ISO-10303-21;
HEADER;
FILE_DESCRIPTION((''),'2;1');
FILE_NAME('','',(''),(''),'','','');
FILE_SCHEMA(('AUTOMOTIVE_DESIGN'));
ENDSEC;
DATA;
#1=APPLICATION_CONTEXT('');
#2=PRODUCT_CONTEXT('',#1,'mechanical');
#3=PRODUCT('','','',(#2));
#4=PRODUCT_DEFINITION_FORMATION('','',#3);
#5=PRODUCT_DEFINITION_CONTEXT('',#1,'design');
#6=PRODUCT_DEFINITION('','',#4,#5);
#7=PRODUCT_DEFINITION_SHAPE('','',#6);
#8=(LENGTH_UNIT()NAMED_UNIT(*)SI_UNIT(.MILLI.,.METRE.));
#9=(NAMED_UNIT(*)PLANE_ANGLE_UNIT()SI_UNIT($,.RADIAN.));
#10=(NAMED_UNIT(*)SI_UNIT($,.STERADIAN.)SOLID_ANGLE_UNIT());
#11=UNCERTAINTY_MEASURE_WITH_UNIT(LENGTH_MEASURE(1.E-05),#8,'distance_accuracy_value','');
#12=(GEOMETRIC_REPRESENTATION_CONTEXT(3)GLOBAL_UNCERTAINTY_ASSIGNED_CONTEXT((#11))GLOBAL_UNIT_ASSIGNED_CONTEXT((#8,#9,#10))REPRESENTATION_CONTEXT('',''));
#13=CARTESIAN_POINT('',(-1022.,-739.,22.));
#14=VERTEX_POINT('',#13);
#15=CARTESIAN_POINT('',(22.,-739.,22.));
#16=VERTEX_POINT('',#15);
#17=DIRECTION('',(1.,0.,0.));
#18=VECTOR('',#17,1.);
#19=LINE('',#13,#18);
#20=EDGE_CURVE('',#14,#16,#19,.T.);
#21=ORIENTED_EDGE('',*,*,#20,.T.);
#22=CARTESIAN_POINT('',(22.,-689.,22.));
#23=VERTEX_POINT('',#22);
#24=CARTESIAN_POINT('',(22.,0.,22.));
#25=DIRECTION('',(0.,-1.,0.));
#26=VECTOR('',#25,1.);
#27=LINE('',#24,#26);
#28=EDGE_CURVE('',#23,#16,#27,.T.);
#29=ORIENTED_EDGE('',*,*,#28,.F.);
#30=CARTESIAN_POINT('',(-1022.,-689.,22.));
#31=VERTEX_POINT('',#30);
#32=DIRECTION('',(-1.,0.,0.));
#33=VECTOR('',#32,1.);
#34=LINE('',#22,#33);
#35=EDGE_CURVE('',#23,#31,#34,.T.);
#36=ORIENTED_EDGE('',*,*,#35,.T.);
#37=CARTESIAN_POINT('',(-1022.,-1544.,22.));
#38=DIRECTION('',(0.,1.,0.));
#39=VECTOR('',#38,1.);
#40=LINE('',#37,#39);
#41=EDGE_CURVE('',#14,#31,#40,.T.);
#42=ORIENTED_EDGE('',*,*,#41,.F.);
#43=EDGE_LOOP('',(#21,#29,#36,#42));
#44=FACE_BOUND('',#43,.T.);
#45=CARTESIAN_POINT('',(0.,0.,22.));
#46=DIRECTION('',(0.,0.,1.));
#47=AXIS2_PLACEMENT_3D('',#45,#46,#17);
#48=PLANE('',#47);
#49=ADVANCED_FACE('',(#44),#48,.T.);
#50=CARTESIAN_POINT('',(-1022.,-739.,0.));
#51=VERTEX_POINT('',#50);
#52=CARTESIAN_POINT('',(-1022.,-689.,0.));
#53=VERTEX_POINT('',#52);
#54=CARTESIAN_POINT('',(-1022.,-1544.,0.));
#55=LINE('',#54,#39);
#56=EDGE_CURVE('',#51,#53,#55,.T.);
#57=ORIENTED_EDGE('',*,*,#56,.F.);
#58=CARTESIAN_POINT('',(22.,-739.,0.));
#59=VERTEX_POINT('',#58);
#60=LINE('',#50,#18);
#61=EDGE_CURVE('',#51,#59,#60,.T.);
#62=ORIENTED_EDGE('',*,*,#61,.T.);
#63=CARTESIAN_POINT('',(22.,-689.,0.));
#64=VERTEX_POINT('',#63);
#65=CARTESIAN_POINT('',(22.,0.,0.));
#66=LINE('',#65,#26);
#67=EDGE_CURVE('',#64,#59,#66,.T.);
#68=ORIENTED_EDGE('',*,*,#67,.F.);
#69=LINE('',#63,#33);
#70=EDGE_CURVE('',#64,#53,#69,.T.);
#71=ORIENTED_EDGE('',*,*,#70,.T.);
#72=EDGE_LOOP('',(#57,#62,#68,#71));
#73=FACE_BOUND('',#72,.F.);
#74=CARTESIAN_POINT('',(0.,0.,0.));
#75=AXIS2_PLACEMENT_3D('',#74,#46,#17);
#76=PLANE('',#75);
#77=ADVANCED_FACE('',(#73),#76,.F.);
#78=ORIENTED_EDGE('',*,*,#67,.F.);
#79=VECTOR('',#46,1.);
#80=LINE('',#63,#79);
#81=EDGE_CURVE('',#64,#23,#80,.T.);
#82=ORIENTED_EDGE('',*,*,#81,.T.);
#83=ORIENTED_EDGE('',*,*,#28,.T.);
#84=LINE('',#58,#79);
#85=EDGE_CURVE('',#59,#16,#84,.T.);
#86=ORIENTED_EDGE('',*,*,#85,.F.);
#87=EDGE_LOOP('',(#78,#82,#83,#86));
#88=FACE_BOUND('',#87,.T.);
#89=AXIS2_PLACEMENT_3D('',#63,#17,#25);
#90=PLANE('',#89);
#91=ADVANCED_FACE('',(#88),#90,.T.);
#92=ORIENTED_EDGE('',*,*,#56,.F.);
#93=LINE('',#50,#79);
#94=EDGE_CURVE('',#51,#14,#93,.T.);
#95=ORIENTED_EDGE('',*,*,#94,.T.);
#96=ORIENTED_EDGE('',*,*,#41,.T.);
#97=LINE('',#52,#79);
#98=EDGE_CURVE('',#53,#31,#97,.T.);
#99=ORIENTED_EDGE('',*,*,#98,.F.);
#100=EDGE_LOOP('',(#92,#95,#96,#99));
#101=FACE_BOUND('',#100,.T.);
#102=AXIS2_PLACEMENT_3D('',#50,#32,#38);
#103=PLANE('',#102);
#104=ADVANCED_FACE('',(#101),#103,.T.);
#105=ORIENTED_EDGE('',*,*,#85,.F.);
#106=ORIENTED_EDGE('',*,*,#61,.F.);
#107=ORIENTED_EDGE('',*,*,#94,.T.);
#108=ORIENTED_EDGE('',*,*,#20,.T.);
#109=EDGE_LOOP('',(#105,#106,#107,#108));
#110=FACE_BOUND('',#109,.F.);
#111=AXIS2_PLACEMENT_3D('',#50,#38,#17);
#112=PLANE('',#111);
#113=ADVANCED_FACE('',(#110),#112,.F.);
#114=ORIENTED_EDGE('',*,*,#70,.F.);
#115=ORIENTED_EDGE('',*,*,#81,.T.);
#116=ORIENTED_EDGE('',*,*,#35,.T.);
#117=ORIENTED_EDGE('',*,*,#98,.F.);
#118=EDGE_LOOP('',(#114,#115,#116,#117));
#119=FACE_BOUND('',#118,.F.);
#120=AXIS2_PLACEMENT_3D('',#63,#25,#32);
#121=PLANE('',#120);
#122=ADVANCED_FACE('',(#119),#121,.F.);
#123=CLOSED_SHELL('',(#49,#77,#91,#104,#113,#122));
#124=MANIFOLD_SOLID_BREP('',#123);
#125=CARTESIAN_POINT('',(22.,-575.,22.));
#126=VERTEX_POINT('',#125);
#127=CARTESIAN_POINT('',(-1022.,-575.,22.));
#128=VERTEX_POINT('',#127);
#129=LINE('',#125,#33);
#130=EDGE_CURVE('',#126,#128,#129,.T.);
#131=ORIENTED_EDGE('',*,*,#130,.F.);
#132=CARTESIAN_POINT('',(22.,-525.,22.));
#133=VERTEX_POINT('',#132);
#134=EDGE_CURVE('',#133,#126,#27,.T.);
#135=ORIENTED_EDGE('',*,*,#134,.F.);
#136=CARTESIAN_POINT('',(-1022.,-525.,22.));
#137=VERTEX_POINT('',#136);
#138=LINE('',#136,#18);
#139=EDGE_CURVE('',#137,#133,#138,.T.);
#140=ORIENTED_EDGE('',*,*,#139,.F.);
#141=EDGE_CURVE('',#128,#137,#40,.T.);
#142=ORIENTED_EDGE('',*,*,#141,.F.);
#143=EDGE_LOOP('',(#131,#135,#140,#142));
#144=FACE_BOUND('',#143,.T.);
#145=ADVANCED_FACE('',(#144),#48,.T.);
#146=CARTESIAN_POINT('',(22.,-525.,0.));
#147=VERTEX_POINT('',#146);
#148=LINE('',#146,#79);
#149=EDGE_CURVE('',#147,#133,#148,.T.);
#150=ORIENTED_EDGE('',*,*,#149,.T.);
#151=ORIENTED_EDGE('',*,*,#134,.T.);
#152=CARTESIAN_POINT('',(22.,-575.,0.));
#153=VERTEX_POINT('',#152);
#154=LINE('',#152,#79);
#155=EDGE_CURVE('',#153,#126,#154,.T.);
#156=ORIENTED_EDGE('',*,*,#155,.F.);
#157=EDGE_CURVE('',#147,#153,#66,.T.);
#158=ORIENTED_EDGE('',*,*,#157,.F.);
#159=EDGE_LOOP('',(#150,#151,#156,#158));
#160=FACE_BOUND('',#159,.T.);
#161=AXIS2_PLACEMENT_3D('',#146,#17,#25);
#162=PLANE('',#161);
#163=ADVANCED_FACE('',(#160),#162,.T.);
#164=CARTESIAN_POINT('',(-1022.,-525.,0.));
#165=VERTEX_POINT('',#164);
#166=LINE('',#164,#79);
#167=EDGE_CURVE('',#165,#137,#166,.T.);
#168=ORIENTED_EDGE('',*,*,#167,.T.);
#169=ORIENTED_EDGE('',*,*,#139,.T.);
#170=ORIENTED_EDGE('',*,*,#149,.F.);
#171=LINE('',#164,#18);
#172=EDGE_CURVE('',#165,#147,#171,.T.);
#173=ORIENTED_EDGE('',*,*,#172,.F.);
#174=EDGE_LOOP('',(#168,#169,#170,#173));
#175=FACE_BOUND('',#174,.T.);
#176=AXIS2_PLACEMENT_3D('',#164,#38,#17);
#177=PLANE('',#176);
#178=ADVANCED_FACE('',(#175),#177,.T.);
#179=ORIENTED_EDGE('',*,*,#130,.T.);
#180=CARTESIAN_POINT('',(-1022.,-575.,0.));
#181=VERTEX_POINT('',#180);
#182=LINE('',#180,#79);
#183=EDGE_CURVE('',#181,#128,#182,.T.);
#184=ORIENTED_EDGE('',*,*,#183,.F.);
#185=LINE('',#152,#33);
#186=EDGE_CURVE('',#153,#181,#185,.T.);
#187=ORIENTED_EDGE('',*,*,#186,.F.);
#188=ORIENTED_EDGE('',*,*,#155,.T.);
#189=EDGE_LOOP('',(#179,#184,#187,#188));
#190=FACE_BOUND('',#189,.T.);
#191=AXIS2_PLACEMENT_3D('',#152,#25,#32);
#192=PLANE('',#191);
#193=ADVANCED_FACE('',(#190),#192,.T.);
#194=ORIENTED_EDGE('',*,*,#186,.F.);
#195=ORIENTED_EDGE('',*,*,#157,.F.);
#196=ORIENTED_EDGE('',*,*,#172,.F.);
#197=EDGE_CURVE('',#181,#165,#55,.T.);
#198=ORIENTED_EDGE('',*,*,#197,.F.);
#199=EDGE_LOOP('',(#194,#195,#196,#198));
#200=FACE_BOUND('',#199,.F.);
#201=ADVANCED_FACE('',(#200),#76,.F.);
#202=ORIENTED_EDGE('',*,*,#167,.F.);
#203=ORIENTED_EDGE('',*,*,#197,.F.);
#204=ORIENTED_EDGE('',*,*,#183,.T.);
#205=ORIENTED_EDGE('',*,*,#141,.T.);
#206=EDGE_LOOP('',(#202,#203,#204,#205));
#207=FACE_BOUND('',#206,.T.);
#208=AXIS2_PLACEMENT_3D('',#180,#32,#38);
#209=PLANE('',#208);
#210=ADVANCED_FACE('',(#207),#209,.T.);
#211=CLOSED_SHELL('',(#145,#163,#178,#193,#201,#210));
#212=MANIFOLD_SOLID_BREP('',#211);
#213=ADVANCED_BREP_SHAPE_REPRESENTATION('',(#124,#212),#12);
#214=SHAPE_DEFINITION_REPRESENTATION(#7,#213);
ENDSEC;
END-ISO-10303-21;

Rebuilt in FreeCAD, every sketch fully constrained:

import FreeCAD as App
import Part
import Sketcher

V = App.Vector


def add_polygon(sketch, points):
    """Adds a closed chain of lines whose ends are joined by coincident constraints."""
    first, n = sketch.GeometryCount, len(points)
    for a, b in zip(points, points[1:] + points[:1]):
        sketch.addGeometry(Part.LineSegment(App.Vector(*a, 0), App.Vector(*b, 0)), False)
    for i in range(n):
        sketch.addConstraint(Sketcher.Constraint("Coincident", first + i, 2, first + (i + 1) % n, 1))

doc = App.newDocument("Part")
params = doc.addObject("Spreadsheet::Sheet", "Params")
for row, (alias, value) in enumerate([
    ("sketch1_height", "50 mm"),
    ("sketch1_width", "1044 mm"),
    ("pad1_length", "22 mm"),
], start=1):
    params.set(f"A{row}", alias)
    params.set(f"B{row}", "=" + value)
    params.setAlias(f"B{row}", alias)

body = doc.addObject("PartDesign::Body", "Body")
body.AllowCompound = True

# Sketch on XY plane
sketch1 = doc.addObject("Sketcher::SketchObject", "Sketch")
body.addObject(sketch1)
sketch1.AttachmentSupport = (doc.XY_Plane, [""])
sketch1.MapMode = "FlatFace"
add_polygon(sketch1, [(22, -575), (22, -525), (-1022, -525), (-1022, -575)])  # lines 0-3
add_polygon(sketch1, [(22, -739), (22, -689), (-1022, -689), (-1022, -739)])  # lines 4-7
sketch1.addConstraint([
    Sketcher.Constraint("Vertical", 0),
    Sketcher.Constraint("Horizontal", 1),
    Sketcher.Constraint("Vertical", 2),
    Sketcher.Constraint("Horizontal", 3),
    Sketcher.Constraint("Vertical", 4),
    Sketcher.Constraint("Horizontal", 5),
    Sketcher.Constraint("Vertical", 6),
    Sketcher.Constraint("Horizontal", 7),
    Sketcher.Constraint("Vertical", 3, 2, 4, 2),
    Sketcher.Constraint("Vertical", 2, 2, 5, 2),
    Sketcher.Constraint("Equal", 2, 4),
    Sketcher.Constraint("DistanceY", 0, 1, 0, 2, 50.0),
    Sketcher.Constraint("DistanceX", 1, 2, 1, 1, 1044.0),
    Sketcher.Constraint("DistanceX", -1, 1, 0, 2, 22.0),
    Sketcher.Constraint("DistanceY", 0, 2, -1, 1, 525.0),
    Sketcher.Constraint("DistanceY", 4, 2, -1, 1, 689.0),
])
sketch1.setExpression("Constraints[19]", "Params.sketch1_height")
sketch1.setExpression("Constraints[20]", "Params.sketch1_width")
pad1 = doc.addObject("PartDesign::Pad", "Pad")
body.addObject(pad1)
pad1.Profile = sketch1
pad1.setExpression("Length", "Params.pad1_length")

doc.recompute()
